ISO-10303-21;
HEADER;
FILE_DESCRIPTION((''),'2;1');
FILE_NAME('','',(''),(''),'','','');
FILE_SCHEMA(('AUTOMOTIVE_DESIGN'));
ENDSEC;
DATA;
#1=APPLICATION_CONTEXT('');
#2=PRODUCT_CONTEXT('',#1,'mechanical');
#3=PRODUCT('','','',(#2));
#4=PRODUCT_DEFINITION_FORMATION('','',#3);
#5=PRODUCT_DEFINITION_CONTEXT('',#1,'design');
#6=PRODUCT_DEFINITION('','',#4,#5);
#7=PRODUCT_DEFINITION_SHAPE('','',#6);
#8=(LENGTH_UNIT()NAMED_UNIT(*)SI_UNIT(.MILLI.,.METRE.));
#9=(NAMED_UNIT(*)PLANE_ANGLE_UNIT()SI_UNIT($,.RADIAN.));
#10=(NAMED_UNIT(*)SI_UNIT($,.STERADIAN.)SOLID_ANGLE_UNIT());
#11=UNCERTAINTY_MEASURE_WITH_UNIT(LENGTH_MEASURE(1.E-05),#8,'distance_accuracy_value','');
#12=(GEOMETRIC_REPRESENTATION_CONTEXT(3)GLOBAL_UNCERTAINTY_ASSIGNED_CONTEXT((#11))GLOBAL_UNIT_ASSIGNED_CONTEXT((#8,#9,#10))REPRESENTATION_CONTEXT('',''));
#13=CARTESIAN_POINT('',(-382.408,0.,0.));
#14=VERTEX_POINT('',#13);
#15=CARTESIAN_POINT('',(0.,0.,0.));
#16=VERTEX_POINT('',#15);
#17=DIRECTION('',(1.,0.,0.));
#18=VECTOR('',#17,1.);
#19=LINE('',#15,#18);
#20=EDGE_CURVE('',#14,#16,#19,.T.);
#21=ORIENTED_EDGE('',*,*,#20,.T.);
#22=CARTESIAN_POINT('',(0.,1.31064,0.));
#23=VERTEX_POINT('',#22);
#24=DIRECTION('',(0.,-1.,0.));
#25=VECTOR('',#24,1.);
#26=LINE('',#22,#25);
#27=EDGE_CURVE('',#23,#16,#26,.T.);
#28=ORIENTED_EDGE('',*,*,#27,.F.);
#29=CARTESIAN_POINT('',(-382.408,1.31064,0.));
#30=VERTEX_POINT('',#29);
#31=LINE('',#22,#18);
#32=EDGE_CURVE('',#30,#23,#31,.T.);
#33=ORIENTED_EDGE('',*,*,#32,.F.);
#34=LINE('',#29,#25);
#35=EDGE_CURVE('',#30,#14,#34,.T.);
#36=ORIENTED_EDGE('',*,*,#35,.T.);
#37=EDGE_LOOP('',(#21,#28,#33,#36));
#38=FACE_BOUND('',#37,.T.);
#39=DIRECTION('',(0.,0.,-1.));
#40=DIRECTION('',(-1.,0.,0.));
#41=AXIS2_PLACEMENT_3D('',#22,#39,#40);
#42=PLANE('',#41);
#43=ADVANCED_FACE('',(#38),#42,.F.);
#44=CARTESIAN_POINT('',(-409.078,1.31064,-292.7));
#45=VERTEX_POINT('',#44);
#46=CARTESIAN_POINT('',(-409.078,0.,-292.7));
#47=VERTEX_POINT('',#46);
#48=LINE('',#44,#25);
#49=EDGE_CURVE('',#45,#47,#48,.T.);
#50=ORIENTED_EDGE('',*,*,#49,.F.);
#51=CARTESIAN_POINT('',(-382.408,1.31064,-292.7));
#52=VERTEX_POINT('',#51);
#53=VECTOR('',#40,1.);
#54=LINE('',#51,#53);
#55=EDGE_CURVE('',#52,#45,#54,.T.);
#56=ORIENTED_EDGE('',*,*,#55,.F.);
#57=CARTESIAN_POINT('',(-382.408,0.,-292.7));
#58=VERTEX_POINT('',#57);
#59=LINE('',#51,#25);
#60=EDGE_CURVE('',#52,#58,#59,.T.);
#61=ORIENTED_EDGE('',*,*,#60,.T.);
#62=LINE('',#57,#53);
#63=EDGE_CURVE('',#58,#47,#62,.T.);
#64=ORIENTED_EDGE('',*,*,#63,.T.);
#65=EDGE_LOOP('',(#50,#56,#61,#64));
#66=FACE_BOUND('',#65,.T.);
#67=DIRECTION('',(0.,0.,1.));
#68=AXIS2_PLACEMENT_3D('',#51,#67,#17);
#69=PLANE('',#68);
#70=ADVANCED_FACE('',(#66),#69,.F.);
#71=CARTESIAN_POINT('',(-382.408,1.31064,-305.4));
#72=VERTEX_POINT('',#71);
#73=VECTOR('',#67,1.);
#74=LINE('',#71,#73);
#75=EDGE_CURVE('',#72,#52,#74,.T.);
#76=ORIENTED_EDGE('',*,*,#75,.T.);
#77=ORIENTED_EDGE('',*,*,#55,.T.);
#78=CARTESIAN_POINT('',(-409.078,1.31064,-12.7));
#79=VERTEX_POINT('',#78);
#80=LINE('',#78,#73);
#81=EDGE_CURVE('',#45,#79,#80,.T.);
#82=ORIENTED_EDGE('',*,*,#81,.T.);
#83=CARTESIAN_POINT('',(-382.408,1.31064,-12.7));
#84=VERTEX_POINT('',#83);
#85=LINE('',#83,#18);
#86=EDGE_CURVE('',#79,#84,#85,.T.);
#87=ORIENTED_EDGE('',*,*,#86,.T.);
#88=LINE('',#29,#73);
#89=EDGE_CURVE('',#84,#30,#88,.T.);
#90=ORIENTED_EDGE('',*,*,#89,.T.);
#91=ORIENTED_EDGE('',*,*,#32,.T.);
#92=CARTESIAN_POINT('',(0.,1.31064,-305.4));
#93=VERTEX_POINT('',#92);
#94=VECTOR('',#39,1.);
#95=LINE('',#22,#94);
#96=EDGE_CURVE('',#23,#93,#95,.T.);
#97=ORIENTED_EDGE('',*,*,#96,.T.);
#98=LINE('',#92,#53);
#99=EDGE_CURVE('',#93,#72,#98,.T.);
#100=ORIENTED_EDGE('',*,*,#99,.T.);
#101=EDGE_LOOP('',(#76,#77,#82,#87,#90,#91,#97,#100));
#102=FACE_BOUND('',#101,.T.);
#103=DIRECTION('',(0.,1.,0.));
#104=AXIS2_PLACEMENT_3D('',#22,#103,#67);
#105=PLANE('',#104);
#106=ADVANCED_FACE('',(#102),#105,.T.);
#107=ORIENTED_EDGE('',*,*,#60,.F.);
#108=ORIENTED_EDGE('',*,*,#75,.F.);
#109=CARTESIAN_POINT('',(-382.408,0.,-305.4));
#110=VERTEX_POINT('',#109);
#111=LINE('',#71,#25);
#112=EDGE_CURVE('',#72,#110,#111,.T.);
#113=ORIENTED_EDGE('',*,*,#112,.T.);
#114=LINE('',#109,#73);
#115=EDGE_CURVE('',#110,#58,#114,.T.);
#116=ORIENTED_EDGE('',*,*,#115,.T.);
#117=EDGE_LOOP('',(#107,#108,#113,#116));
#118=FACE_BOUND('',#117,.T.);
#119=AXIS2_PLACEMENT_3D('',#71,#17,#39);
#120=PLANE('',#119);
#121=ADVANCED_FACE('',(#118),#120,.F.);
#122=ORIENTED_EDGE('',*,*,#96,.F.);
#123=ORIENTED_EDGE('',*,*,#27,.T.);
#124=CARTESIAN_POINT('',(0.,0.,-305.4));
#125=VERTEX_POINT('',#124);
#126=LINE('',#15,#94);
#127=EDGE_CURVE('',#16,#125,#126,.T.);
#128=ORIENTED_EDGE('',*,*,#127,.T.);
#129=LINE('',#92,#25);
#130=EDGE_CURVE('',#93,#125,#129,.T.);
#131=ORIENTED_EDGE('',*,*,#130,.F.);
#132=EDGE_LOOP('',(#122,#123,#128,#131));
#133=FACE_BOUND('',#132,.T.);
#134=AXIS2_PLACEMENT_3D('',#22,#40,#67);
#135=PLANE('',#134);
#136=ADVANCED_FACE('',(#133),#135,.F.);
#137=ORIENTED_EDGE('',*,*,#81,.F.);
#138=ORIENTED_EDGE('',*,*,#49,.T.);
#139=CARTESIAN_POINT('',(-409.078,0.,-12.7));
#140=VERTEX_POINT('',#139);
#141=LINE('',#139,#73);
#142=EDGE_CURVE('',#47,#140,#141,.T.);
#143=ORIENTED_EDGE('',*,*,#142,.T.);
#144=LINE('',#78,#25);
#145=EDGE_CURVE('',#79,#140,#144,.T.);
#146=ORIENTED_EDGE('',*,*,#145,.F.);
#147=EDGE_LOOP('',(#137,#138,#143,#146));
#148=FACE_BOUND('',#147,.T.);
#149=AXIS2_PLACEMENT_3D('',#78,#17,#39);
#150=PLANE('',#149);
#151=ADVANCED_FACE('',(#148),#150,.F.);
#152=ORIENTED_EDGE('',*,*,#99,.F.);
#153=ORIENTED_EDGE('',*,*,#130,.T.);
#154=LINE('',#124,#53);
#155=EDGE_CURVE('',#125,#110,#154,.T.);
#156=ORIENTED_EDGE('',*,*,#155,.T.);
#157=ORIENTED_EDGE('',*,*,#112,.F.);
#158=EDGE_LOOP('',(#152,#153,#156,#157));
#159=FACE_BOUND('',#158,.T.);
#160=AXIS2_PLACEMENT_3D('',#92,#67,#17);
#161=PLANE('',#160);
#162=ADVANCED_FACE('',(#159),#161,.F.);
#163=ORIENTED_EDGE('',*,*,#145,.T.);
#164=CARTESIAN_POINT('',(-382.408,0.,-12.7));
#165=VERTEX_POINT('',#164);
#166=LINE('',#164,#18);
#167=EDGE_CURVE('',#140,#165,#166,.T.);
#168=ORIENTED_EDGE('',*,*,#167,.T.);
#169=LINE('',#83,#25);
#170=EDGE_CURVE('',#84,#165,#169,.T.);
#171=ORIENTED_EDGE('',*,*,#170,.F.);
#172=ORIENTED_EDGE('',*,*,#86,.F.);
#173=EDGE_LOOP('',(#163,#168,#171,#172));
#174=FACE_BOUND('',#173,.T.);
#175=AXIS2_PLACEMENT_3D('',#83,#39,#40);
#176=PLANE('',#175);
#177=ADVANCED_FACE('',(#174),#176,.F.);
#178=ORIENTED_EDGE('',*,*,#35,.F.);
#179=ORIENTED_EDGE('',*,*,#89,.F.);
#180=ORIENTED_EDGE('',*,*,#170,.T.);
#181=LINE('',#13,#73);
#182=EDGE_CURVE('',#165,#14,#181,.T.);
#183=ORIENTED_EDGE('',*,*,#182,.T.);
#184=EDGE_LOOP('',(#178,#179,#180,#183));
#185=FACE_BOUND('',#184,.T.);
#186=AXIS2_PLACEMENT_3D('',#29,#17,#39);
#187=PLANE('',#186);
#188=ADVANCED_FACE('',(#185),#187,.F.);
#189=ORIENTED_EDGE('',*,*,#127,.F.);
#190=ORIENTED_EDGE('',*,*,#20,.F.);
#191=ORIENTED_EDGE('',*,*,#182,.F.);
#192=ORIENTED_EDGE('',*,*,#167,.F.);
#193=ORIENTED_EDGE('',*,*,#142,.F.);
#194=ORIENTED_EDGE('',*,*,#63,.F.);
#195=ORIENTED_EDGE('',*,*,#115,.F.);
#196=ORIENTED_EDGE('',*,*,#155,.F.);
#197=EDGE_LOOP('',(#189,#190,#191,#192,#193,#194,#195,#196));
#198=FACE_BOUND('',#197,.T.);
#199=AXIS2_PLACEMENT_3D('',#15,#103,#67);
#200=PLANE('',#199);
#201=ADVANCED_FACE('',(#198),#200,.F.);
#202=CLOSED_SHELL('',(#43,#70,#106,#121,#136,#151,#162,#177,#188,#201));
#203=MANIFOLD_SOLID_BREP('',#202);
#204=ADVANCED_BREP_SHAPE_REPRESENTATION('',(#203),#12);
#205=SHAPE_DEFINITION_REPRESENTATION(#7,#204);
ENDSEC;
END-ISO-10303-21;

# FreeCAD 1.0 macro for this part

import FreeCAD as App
import Part
import Sketcher
Q = App.Units.Quantity

doc = App.newDocument("Part")
params = doc.addObject("Spreadsheet::Sheet", "Params")
for row, (alias, value) in enumerate([
    ("sketch1_height", "280 mm"),
    ("sketch1_height2", "12.7 mm"),
    ("sketch1_width", "26.67 mm"),
    ("pad1_length", "1.31064 mm"),
], start=1):
    params.set(f"A{row}", alias)
    params.set(f"B{row}", "=" + value)
    params.setAlias(f"B{row}", alias)

body = doc.addObject("PartDesign::Body", "Body")

# Sketch on XZ plane
sketch1 = body.newObject("Sketcher::SketchObject", "Sketch")
sketch1.AttachmentSupport = (doc.getObject("XZ_Plane"), [""])
sketch1.MapMode = "FlatFace"
sketch1.addGeometry([
    Part.LineSegment(App.Vector(-382.408, -12.7, 0), App.Vector(-382.408, 0, 0)),  # 0
    Part.LineSegment(App.Vector(-382.408, 0, 0), App.Vector(0, 0, 0)),  # 1
    Part.LineSegment(App.Vector(0, 0, 0), App.Vector(0, -305.4, 0)),  # 2
    Part.LineSegment(App.Vector(0, -305.4, 0), App.Vector(-382.408, -305.4, 0)),  # 3
    Part.LineSegment(App.Vector(-382.408, -305.4, 0), App.Vector(-382.408, -292.7, 0)),  # 4
    Part.LineSegment(App.Vector(-382.408, -292.7, 0), App.Vector(-409.078, -292.7, 0)),  # 5
    Part.LineSegment(App.Vector(-409.078, -292.7, 0), App.Vector(-409.078, -12.7, 0)),  # 6
    Part.LineSegment(App.Vector(-409.078, -12.7, 0), App.Vector(-382.408, -12.7, 0)),  # 7
], False)
sketch1.addConstraint([
    Sketcher.Constraint("Coincident", 0, 2, 1, 1),
    Sketcher.Constraint("Coincident", 1, 2, 2, 1),
    Sketcher.Constraint("Coincident", 2, 2, 3, 1),
    Sketcher.Constraint("Coincident", 3, 2, 4, 1),
    Sketcher.Constraint("Coincident", 4, 2, 5, 1),
    Sketcher.Constraint("Coincident", 5, 2, 6, 1),
    Sketcher.Constraint("Coincident", 6, 2, 7, 1),
    Sketcher.Constraint("Coincident", 7, 2, 0, 1),
    Sketcher.Constraint("Vertical", 0),
    Sketcher.Constraint("Horizontal", 1),
    Sketcher.Constraint("Vertical", 2),
    Sketcher.Constraint("Horizontal", 3),
    Sketcher.Constraint("Vertical", 4),
    Sketcher.Constraint("Horizontal", 5),
    Sketcher.Constraint("Vertical", 6),
    Sketcher.Constraint("Horizontal", 7),
    Sketcher.Constraint("Coincident", 1, 2, -1, 1),
    Sketcher.Constraint("Vertical", 0, 2, 3, 2),
    Sketcher.Constraint("Equal", 0, 4),
    Sketcher.Constraint("DistanceY", 6, 1, 6, 2, Q("280 mm")),
    Sketcher.Constraint("DistanceY", 0, 1, 0, 2, Q("12.7 mm")),
    Sketcher.Constraint("DistanceX", 5, 2, 5, 1, Q("26.67 mm")),
    Sketcher.Constraint("DistanceX", 1, 1, 1, 2, Q("382.408 mm")),
])
sketch1.setExpression("Constraints[19]", "Params.sketch1_height")
sketch1.setExpression("Constraints[20]", "Params.sketch1_height2")
sketch1.setExpression("Constraints[21]", "Params.sketch1_width")
pad1 = body.newObject("PartDesign::Pad", "Pad")
pad1.Profile = sketch1
pad1.setExpression("Length", "Params.pad1_length")
pad1.Reversed = True

doc.recompute()
